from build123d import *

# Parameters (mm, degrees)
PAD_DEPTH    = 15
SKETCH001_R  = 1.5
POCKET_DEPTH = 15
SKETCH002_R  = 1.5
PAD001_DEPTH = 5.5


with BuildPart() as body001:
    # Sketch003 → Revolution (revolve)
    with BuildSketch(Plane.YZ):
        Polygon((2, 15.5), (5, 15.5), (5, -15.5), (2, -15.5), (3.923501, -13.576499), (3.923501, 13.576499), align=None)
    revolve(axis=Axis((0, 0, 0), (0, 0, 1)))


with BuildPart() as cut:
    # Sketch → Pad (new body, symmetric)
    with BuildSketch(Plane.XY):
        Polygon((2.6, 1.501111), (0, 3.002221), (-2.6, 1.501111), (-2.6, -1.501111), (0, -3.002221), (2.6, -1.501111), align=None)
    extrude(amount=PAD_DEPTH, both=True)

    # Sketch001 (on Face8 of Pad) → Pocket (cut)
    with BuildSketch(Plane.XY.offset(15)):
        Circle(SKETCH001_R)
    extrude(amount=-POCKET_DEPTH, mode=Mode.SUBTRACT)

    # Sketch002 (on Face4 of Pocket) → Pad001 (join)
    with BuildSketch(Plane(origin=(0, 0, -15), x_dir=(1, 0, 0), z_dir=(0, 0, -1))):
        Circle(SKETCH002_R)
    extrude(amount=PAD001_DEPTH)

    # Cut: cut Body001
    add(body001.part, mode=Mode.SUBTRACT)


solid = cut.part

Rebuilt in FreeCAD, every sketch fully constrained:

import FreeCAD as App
import Part
import Sketcher
from FreeCAD import Vector
Q = App.Units.Quantity

doc = App.newDocument("Part")
body = doc.addObject("PartDesign::Body", "Body")

# Sketch on YZ plane
sketch1 = doc.addObject("Sketcher::SketchObject", "Sketch")
body.addObject(sketch1)
sketch1.AttachmentSupport = (doc.YZ_Plane, [""])
sketch1.MapMode = "FlatFace"
sketch1.addGeometry([
    Part.LineSegment(Vector(5, 15.5, 0), Vector(2, 15.5, 0)),  # 0
    Part.LineSegment(Vector(2, 15.5, 0), Vector(3.9, 13.6, 0)),  # 1
    Part.LineSegment(Vector(3.9, 13.6, 0), Vector(3.9, -13.6, 0)),  # 2
    Part.LineSegment(Vector(3.9, -13.6, 0), Vector(2, -15.5, 0)),  # 3
    Part.LineSegment(Vector(2, -15.5, 0), Vector(5, -15.5, 0)),  # 4
    Part.LineSegment(Vector(5, -15.5, 0), Vector(5, 15.5, 0)),  # 5
], False)
sketch1.addConstraint([
    Sketcher.Constraint("Coincident", 0, 2, 1, 1),
    Sketcher.Constraint("Coincident", 1, 2, 2, 1),
    Sketcher.Constraint("Coincident", 2, 2, 3, 1),
    Sketcher.Constraint("Coincident", 3, 2, 4, 1),
    Sketcher.Constraint("Coincident", 4, 2, 5, 1),
    Sketcher.Constraint("Coincident", 5, 2, 0, 1),
    Sketcher.Constraint("Horizontal", 0),
    Sketcher.Constraint("Vertical", 2),
    Sketcher.Constraint("Horizontal", 4),
    Sketcher.Constraint("Vertical", 5),
    Sketcher.Constraint("Symmetric", 0, 2, 3, 2, -1),
    Sketcher.Constraint("Perpendicular", 1, 3),
    Sketcher.Constraint("Equal", 1, 3),
    Sketcher.Constraint("DistanceX", 0, 2, 0, 1, 3.0),
    Sketcher.Constraint("DistanceY", 5, 1, 5, 2, 31.0),
    Sketcher.Constraint("DistanceX", -1, 1, 0, 2, 2.0),
    Sketcher.Constraint("DistanceY", 2, 2, 2, 1, 27.152998),
])
revolution = doc.addObject("PartDesign::Revolution", "Revolution")
body.addObject(revolution)
revolution.Profile = sketch1
revolution.ReferenceAxis = (sketch1, ["V_Axis"])
revolution.Angle = 360
body2 = doc.addObject("PartDesign::Body", "Body001")

# Sketch on XY plane
sketch2 = doc.addObject("Sketcher::SketchObject", "Sketch001")
body2.addObject(sketch2)
sketch2.AttachmentSupport = (doc.getObject("XY_Plane001"), [""])
sketch2.MapMode = "FlatFace"
sketch2.addGeometry([
    Part.LineSegment(Vector(2.6, 1.5, 0), Vector(0, 3, 0)),  # 0
    Part.LineSegment(Vector(0, 3, 0), Vector(-2.6, 1.5, 0)),  # 1
    Part.LineSegment(Vector(-2.6, 1.5, 0), Vector(-2.6, -1.5, 0)),  # 2
    Part.LineSegment(Vector(-2.6, -1.5, 0), Vector(0, -3, 0)),  # 3
    Part.LineSegment(Vector(0, -3, 0), Vector(2.6, -1.5, 0)),  # 4
    Part.LineSegment(Vector(2.6, -1.5, 0), Vector(2.6, 1.5, 0)),  # 5
], False)
sketch2.addConstraint([
    Sketcher.Constraint("Coincident", 0, 2, 1, 1),
    Sketcher.Constraint("Coincident", 1, 2, 2, 1),
    Sketcher.Constraint("Coincident", 2, 2, 3, 1),
    Sketcher.Constraint("Coincident", 3, 2, 4, 1),
    Sketcher.Constraint("Coincident", 4, 2, 5, 1),
    Sketcher.Constraint("Coincident", 5, 2, 0, 1),
    Sketcher.Constraint("Vertical", 2),
    Sketcher.Constraint("Vertical", 5),
    Sketcher.Constraint("Symmetric", 0, 2, 3, 2, -1, 1),
    Sketcher.Constraint("Symmetric", 1, 2, 4, 2, -1, 1),
    Sketcher.Constraint("PointOnObject", 0, 2, -2),
    Sketcher.Constraint("Parallel", 0, 3),
    Sketcher.Constraint("Horizontal", 2, 2, 4, 2),
    Sketcher.Constraint("Angle", 0, Q("150.000012 deg")),
    Sketcher.Constraint("DistanceX", 1, 2, -1, 1, 2.6),
    Sketcher.Constraint("DistanceY", 2, 2, 2, 1, 3.002222),
])
pad1 = doc.addObject("PartDesign::Pad", "Pad")
body2.addObject(pad1)
pad1.Profile = sketch2
pad1.Length = 30
pad1.Midplane = True

# Sketch on XY plane
sketch3 = doc.addObject("Sketcher::SketchObject", "Sketch002")
body2.addObject(sketch3)
sketch3.AttachmentSupport = (doc.getObject("XY_Plane001"), [""])
sketch3.MapMode = "FlatFace"
sketch3.AttachmentOffset = App.Placement(Vector(0, 0, 15), App.Rotation())
sketch3.addGeometry(Part.Circle(Vector(0, 0, 0), Vector(0, 0, 1), 1.5), False)
sketch3.addConstraint([
    Sketcher.Constraint("Coincident", 0, 3, -1, 1),
    Sketcher.Constraint("Diameter", 0, 3.0),
])
pocket1 = doc.addObject("PartDesign::Pocket", "Pocket")
body2.addObject(pocket1)
pocket1.Profile = sketch3
pocket1.Length = 15

# Sketch on XY plane
sketch4 = doc.addObject("Sketcher::SketchObject", "Sketch003")
body2.addObject(sketch4)
sketch4.AttachmentSupport = (doc.getObject("XY_Plane001"), [""])
sketch4.MapMode = "FlatFace"
sketch4.AttachmentOffset = App.Placement(Vector(0, 0, -15), App.Rotation())
sketch4.addGeometry(Part.Circle(Vector(0, 0, 0), Vector(0, 0, 1), 1.5), False)
sketch4.addConstraint([
    Sketcher.Constraint("Coincident", 0, 3, -1, 1),
    Sketcher.Constraint("Diameter", 0, 3.0),
])
pad2 = doc.addObject("PartDesign::Pad", "Pad001")
body2.addObject(pad2)
pad2.Profile = sketch4
pad2.Length = 5.5
pad2.Reversed = True
doc.recompute()

boolean = doc.addObject("PartDesign::Boolean", "Boolean")
body2.addObject(boolean)
boolean.Type = "Cut"
boolean.addObjects([body])

doc.recompute()
